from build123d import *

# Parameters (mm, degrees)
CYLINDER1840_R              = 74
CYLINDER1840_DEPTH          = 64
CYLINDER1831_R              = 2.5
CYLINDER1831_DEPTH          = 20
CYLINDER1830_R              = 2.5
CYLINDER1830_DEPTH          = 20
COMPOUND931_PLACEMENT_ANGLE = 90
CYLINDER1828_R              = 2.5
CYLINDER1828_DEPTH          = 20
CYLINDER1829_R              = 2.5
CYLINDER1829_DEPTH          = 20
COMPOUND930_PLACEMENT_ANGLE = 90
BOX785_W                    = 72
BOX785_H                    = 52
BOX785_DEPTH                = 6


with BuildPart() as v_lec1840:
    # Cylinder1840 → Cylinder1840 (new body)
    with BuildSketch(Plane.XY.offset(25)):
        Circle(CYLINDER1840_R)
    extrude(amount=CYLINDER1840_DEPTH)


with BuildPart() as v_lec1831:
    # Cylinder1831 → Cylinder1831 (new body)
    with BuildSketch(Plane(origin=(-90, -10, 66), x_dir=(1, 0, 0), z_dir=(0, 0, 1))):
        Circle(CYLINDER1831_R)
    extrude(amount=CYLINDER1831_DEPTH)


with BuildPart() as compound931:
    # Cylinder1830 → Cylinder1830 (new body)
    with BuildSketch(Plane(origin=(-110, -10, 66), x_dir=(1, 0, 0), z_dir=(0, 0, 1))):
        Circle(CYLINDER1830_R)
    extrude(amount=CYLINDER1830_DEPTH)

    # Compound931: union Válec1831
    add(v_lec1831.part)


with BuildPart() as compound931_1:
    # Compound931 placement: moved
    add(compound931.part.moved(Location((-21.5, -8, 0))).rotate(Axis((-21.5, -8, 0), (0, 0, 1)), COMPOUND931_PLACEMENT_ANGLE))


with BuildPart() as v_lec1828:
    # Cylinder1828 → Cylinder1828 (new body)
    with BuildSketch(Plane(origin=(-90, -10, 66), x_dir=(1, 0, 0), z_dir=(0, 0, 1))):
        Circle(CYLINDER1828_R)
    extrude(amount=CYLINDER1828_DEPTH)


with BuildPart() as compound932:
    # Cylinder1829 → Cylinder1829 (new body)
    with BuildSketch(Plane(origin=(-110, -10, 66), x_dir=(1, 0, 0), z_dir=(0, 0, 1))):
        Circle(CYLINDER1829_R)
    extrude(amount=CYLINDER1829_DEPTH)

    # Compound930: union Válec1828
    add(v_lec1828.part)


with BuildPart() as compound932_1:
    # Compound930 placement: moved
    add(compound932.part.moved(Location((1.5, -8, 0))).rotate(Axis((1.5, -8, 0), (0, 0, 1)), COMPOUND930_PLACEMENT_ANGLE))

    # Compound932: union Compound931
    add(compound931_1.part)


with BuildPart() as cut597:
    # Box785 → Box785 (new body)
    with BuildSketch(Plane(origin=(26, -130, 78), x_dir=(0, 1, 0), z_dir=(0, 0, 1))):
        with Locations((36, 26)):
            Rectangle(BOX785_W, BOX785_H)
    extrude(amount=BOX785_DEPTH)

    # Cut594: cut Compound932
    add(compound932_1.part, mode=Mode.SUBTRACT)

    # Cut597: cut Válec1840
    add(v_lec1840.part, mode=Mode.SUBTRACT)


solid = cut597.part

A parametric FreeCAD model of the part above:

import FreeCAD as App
import Part
import Sketcher

V = App.Vector
Q = App.Units.Quantity

doc = App.newDocument("Part")
body = doc.addObject("PartDesign::Body", "Body")

# Sketch on XY plane
sketch1 = body.newObject("Sketcher::SketchObject", "Sketch")
sketch1.AttachmentSupport = (doc.getObject("XY_Plane"), [""])
sketch1.MapMode = "FlatFace"
sketch1.AttachmentOffset = App.Placement(V(0, 0, 25), App.Rotation())
sketch1.addGeometry(Part.Circle(V(0, 0, 0), V(0, 0, 1), 74), False)
sketch1.addConstraint(Sketcher.Constraint("Coincident", 0, 3, -1, 1))
sketch1.addConstraint(Sketcher.Constraint("Diameter", 0, Q("148 mm")))
pad1 = body.newObject("PartDesign::Pad", "Pad")
pad1.Profile = sketch1
pad1.Length = 64
body2 = doc.addObject("PartDesign::Body", "Body001")

# Sketch on XY plane
sketch2 = body2.newObject("Sketcher::SketchObject", "Sketch001")
sketch2.AttachmentSupport = (doc.getObject("XY_Plane001"), [""])
sketch2.MapMode = "FlatFace"
sketch2.AttachmentOffset = App.Placement(V(0, 0, 66), App.Rotation())
sketch2.addGeometry(Part.Circle(V(-90, -10, 0), V(0, 0, 1), 2.5), False)
sketch2.addConstraint(Sketcher.Constraint("Diameter", 0, Q("5 mm")))
sketch2.addConstraint(Sketcher.Constraint("DistanceX", 0, 3, -1, 1, Q("90 mm")))
sketch2.addConstraint(Sketcher.Constraint("DistanceY", 0, 3, -1, 1, Q("10 mm")))
pad2 = body2.newObject("PartDesign::Pad", "Pad001")
pad2.Profile = sketch2
pad2.Length = 20
body3 = doc.addObject("PartDesign::Body", "Body002")
body3.AllowCompound = True

# Sketch on XY plane
sketch3 = body3.newObject("Sketcher::SketchObject", "Sketch002")
sketch3.AttachmentSupport = (doc.getObject("XY_Plane002"), [""])
sketch3.MapMode = "FlatFace"
sketch3.AttachmentOffset = App.Placement(V(0, 0, 66), App.Rotation())
sketch3.addGeometry(Part.Circle(V(-110, -10, 0), V(0, 0, 1), 2.5), False)
sketch3.addConstraint(Sketcher.Constraint("Diameter", 0, Q("5 mm")))
sketch3.addConstraint(Sketcher.Constraint("DistanceX", 0, 3, -1, 1, Q("110 mm")))
sketch3.addConstraint(Sketcher.Constraint("DistanceY", 0, 3, -1, 1, Q("10 mm")))
pad3 = body3.newObject("PartDesign::Pad", "Pad002")
pad3.Profile = sketch3
pad3.Length = 20
doc.recompute()

boolean = body3.newObject("PartDesign::Boolean", "Boolean")
boolean.Type = "Fuse"
boolean.addObjects([body2])
body4 = doc.addObject("PartDesign::Body", "Body003")
body4.AllowCompound = True
doc.recompute()

body3.Placement = App.Placement(V(-21.5, -8, 0), App.Rotation(V(0, 0, 1), 90))
boolean2 = body4.newObject("PartDesign::Boolean", "Boolean001")
boolean2.Type = "Fuse"
boolean2.addObjects([body3])
body5 = doc.addObject("PartDesign::Body", "Body004")

# Sketch on XY plane
sketch4 = body5.newObject("Sketcher::SketchObject", "Sketch003")
sketch4.AttachmentSupport = (doc.getObject("XY_Plane004"), [""])
sketch4.MapMode = "FlatFace"
sketch4.AttachmentOffset = App.Placement(V(0, 0, 66), App.Rotation())
sketch4.addGeometry(Part.Circle(V(-90, -10, 0), V(0, 0, 1), 2.5), False)
sketch4.addConstraint(Sketcher.Constraint("Diameter", 0, Q("5 mm")))
sketch4.addConstraint(Sketcher.Constraint("DistanceX", 0, 3, -1, 1, Q("90 mm")))
sketch4.addConstraint(Sketcher.Constraint("DistanceY", 0, 3, -1, 1, Q("10 mm")))
pad4 = body5.newObject("PartDesign::Pad", "Pad003")
pad4.Profile = sketch4
pad4.Length = 20
body6 = doc.addObject("PartDesign::Body", "Body005")
body6.AllowCompound = True

# Sketch on XY plane
sketch5 = body6.newObject("Sketcher::SketchObject", "Sketch004")
sketch5.AttachmentSupport = (doc.getObject("XY_Plane005"), [""])
sketch5.MapMode = "FlatFace"
sketch5.AttachmentOffset = App.Placement(V(0, 0, 66), App.Rotation())
sketch5.addGeometry(Part.Circle(V(-110, -10, 0), V(0, 0, 1), 2.5), False)
sketch5.addConstraint(Sketcher.Constraint("Diameter", 0, Q("5 mm")))
sketch5.addConstraint(Sketcher.Constraint("DistanceX", 0, 3, -1, 1, Q("110 mm")))
sketch5.addConstraint(Sketcher.Constraint("DistanceY", 0, 3, -1, 1, Q("10 mm")))
pad5 = body6.newObject("PartDesign::Pad", "Pad004")
pad5.Profile = sketch5
pad5.Length = 20
doc.recompute()

boolean3 = body6.newObject("PartDesign::Boolean", "Boolean002")
boolean3.Type = "Fuse"
boolean3.addObjects([body5])
body7 = doc.addObject("PartDesign::Body", "Body006")
body7.AllowCompound = True
doc.recompute()

body6.Placement = App.Placement(V(1.5, -8, 0), App.Rotation(V(0, 0, 1), 90))
boolean4 = body7.newObject("PartDesign::Boolean", "Boolean003")
boolean4.Type = "Fuse"
boolean4.addObjects([body6])
doc.recompute()

boolean5 = body7.newObject("PartDesign::Boolean", "Boolean004")
boolean5.Type = "Fuse"
boolean5.addObjects([body4])
body8 = doc.addObject("PartDesign::Body", "Body007")

# Sketch on XY plane
sketch6 = body8.newObject("Sketcher::SketchObject", "Sketch005")
sketch6.AttachmentSupport = (doc.getObject("XY_Plane007"), [""])
sketch6.MapMode = "FlatFace"
sketch6.AttachmentOffset = App.Placement(V(0, 0, 78), App.Rotation())
sketch6.addGeometry(Part.LineSegment(V(-26, -130, 0), V(26, -130, 0)), False)
sketch6.addGeometry(Part.LineSegment(V(26, -130, 0), V(26, -58, 0)), False)
sketch6.addGeometry(Part.LineSegment(V(26, -58, 0), V(-26, -58, 0)), False)
sketch6.addGeometry(Part.LineSegment(V(-26, -58, 0), V(-26, -130, 0)), False)
sketch6.addConstraint(Sketcher.Constraint("Coincident", 0, 2, 1, 1))
sketch6.addConstraint(Sketcher.Constraint("Coincident", 1, 2, 2, 1))
sketch6.addConstraint(Sketcher.Constraint("Coincident", 2, 2, 3, 1))
sketch6.addConstraint(Sketcher.Constraint("Coincident", 3, 2, 0, 1))
sketch6.addConstraint(Sketcher.Constraint("Horizontal", 0))
sketch6.addConstraint(Sketcher.Constraint("Vertical", 1))
sketch6.addConstraint(Sketcher.Constraint("Horizontal", 2))
sketch6.addConstraint(Sketcher.Constraint("Vertical", 3))
sketch6.addConstraint(Sketcher.Constraint("DistanceX", 0, 1, 0, 2, Q("52 mm")))
sketch6.addConstraint(Sketcher.Constraint("DistanceY", 1, 1, 1, 2, Q("72 mm")))
sketch6.addConstraint(Sketcher.Constraint("DistanceX", -1, 1, 0, 2, Q("26 mm")))
sketch6.addConstraint(Sketcher.Constraint("DistanceY", 0, 2, -1, 1, Q("130 mm")))
pad6 = body8.newObject("PartDesign::Pad", "Pad005")
pad6.Profile = sketch6
pad6.Length = 6
doc.recompute()

boolean6 = body8.newObject("PartDesign::Boolean", "Boolean005")
boolean6.Type = "Cut"
boolean6.addObjects([body7])
doc.recompute()

boolean7 = body8.newObject("PartDesign::Boolean", "Boolean006")
boolean7.Type = "Cut"
boolean7.addObjects([body])

doc.recompute()
